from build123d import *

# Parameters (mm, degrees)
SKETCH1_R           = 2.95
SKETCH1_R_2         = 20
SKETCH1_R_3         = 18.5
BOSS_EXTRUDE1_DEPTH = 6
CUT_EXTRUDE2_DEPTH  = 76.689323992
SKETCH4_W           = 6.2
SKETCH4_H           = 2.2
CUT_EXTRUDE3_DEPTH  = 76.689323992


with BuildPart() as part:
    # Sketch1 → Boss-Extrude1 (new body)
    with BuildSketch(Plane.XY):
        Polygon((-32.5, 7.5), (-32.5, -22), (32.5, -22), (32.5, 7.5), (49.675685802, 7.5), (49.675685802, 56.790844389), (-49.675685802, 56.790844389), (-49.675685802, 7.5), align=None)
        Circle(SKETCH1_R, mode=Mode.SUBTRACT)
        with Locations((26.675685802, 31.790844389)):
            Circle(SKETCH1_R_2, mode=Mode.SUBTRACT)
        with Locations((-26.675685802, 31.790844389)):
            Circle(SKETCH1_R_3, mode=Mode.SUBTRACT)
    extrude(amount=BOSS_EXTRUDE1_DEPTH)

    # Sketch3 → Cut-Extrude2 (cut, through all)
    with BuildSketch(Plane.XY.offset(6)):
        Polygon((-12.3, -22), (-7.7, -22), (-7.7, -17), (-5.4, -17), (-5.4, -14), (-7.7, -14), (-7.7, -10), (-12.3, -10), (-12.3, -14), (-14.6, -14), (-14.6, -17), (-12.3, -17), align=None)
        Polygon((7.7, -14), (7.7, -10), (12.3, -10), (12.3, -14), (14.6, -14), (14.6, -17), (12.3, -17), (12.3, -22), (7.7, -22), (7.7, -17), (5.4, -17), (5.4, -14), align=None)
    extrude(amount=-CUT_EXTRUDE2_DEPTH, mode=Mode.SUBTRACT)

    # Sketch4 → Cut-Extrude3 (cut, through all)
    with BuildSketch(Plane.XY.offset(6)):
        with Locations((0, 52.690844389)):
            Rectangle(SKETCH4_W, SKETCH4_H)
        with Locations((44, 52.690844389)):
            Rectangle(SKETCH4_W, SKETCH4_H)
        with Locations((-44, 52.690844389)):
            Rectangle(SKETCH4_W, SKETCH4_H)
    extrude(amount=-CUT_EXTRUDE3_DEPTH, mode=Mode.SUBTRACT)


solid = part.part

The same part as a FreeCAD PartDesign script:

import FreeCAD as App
import Part
import Sketcher

V = App.Vector

doc = App.newDocument("Part")
params = doc.addObject("Spreadsheet::Sheet", "Params")
for row, (alias, value) in enumerate([
    ("sketch1_diameter", "37 mm"),
    ("sketch1_diameter2", "40 mm"),
    ("sketch1_diameter3", "5.9 mm"),
    ("sketch1_width", "65 mm"),
    ("sketch1_height", "29.5 mm"),
    ("pad1_length", "6 mm"),
    ("sketch2_height", "5 mm"),
    ("sketch2_height2", "3 mm"),
    ("sketch2_height3", "4 mm"),
    ("sketch2_width", "4.6 mm"),
    ("sketch2_width2", "2.3 mm"),
    ("sketch3_width", "6.2 mm"),
    ("sketch3_height", "2.2 mm"),
], start=1):
    params.set(f"A{row}", alias)
    params.set(f"B{row}", "=" + value)
    params.setAlias(f"B{row}", alias)

body = doc.addObject("PartDesign::Body", "Body")

sketch1 = body.newObject("Sketcher::SketchObject", "Sketch")
sketch1.AttachmentSupport = (doc.getObject("XY_Plane"), [""])
sketch1.MapMode = "FlatFace"
sketch1.addGeometry(Part.LineSegment(V(-32.5, 7.5, 0), V(-32.5, -22, 0)), False)
sketch1.addGeometry(Part.LineSegment(V(-32.5, -22, 0), V(32.5, -22, 0)), False)
sketch1.addGeometry(Part.LineSegment(V(32.5, -22, 0), V(32.5, 7.5, 0)), False)
sketch1.addGeometry(Part.LineSegment(V(32.5, 7.5, 0), V(49.675686, 7.5, 0)), False)
sketch1.addGeometry(Part.LineSegment(V(49.675686, 7.5, 0), V(49.675686, 56.790844, 0)), False)
sketch1.addGeometry(Part.LineSegment(V(49.675686, 56.790844, 0), V(-49.675686, 56.790844, 0)), False)
sketch1.addGeometry(Part.LineSegment(V(-49.675686, 56.790844, 0), V(-49.675686, 7.5, 0)), False)
sketch1.addGeometry(Part.LineSegment(V(-49.675686, 7.5, 0), V(-32.5, 7.5, 0)), False)
sketch1.addGeometry(Part.Circle(V(0, 0, 0), V(0, 0, 1), 2.95), False)
sketch1.addGeometry(Part.Circle(V(-26.675686, 31.790844, 0), V(0, 0, 1), 18.5), False)
sketch1.addGeometry(Part.Circle(V(26.675686, 31.790844, 0), V(0, 0, 1), 20), False)
sketch1.addConstraint(Sketcher.Constraint("Coincident", 0, 2, 1, 1))
sketch1.addConstraint(Sketcher.Constraint("Coincident", 1, 2, 2, 1))
sketch1.addConstraint(Sketcher.Constraint("Coincident", 2, 2, 3, 1))
sketch1.addConstraint(Sketcher.Constraint("Coincident", 3, 2, 4, 1))
sketch1.addConstraint(Sketcher.Constraint("Coincident", 4, 2, 5, 1))
sketch1.addConstraint(Sketcher.Constraint("Coincident", 5, 2, 6, 1))
sketch1.addConstraint(Sketcher.Constraint("Coincident", 6, 2, 7, 1))
sketch1.addConstraint(Sketcher.Constraint("Coincident", 7, 2, 0, 1))
sketch1.addConstraint(Sketcher.Constraint("Vertical", 0))
sketch1.addConstraint(Sketcher.Constraint("Horizontal", 1))
sketch1.addConstraint(Sketcher.Constraint("Vertical", 2))
sketch1.addConstraint(Sketcher.Constraint("Horizontal", 3))
sketch1.addConstraint(Sketcher.Constraint("Vertical", 4))
sketch1.addConstraint(Sketcher.Constraint("Horizontal", 5))
sketch1.addConstraint(Sketcher.Constraint("Vertical", 6))
sketch1.addConstraint(Sketcher.Constraint("Horizontal", 7))
sketch1.addConstraint(Sketcher.Constraint("Coincident", 8, 3, -1, 1))
sketch1.addConstraint(Sketcher.Constraint("Symmetric", 9, 3, 10, 3, -2))
sketch1.addConstraint(Sketcher.Constraint("Symmetric", 3, 2, 6, 2, -2))
sketch1.addConstraint(Sketcher.Constraint("Equal", 3, 7))
sketch1.addConstraint(Sketcher.Constraint("Diameter", 9, 37.0))
sketch1.addConstraint(Sketcher.Constraint("Diameter", 10, 40.0))
sketch1.addConstraint(Sketcher.Constraint("Diameter", 8, 5.9))
sketch1.addConstraint(Sketcher.Constraint("DistanceX", 1, 1, 1, 2, 65.0))
sketch1.addConstraint(Sketcher.Constraint("DistanceY", 0, 2, 0, 1, 29.5))
sketch1.addConstraint(Sketcher.Constraint("DistanceY", 0, 2, -1, 1, 22.0))
sketch1.addConstraint(Sketcher.Constraint("DistanceX", 10, 3, 3, 2, 23.0))
sketch1.addConstraint(Sketcher.Constraint("DistanceY", 10, 3, 4, 2, 25.0))
sketch1.addConstraint(Sketcher.Constraint("DistanceX", 5, 2, 5, 1, 99.351372))
sketch1.addConstraint(Sketcher.Constraint("DistanceY", 4, 1, 4, 2, 49.290844))
sketch1.setExpression("Constraints[20]", "Params.sketch1_diameter")
sketch1.setExpression("Constraints[21]", "Params.sketch1_diameter2")
sketch1.setExpression("Constraints[22]", "Params.sketch1_diameter3")
sketch1.setExpression("Constraints[23]", "Params.sketch1_width")
sketch1.setExpression("Constraints[24]", "Params.sketch1_height")
pad1 = body.newObject("PartDesign::Pad", "Pad")
pad1.Profile = sketch1
pad1.setExpression("Length", "Params.pad1_length")

sketch2 = body.newObject("Sketcher::SketchObject", "Sketch001")
sketch2.AttachmentSupport = (doc.getObject("XY_Plane"), [""])
sketch2.MapMode = "FlatFace"
sketch2.AttachmentOffset = App.Placement(V(0, 0, 6), App.Rotation())
sketch2.addGeometry(Part.LineSegment(V(-12.3, -22, 0), V(-7.7, -22, 0)), False)
sketch2.addGeometry(Part.LineSegment(V(-7.7, -22, 0), V(-7.7, -17, 0)), False)
sketch2.addGeometry(Part.LineSegment(V(-7.7, -17, 0), V(-5.4, -17, 0)), False)
sketch2.addGeometry(Part.LineSegment(V(-5.4, -17, 0), V(-5.4, -14, 0)), False)
sketch2.addGeometry(Part.LineSegment(V(-5.4, -14, 0), V(-7.7, -14, 0)), False)
sketch2.addGeometry(Part.LineSegment(V(-7.7, -14, 0), V(-7.7, -10, 0)), False)
sketch2.addGeometry(Part.LineSegment(V(-7.7, -10, 0), V(-12.3, -10, 0)), False)
sketch2.addGeometry(Part.LineSegment(V(-12.3, -10, 0), V(-12.3, -14, 0)), False)
sketch2.addGeometry(Part.LineSegment(V(-12.3, -14, 0), V(-14.6, -14, 0)), False)
sketch2.addGeometry(Part.LineSegment(V(-14.6, -14, 0), V(-14.6, -17, 0)), False)
sketch2.addGeometry(Part.LineSegment(V(-14.6, -17, 0), V(-12.3, -17, 0)), False)
sketch2.addGeometry(Part.LineSegment(V(-12.3, -17, 0), V(-12.3, -22, 0)), False)
sketch2.addGeometry(Part.LineSegment(V(7.7, -10, 0), V(7.7, -14, 0)), False)
sketch2.addGeometry(Part.LineSegment(V(7.7, -14, 0), V(5.4, -14, 0)), False)
sketch2.addGeometry(Part.LineSegment(V(5.4, -14, 0), V(5.4, -17, 0)), False)
sketch2.addGeometry(Part.LineSegment(V(5.4, -17, 0), V(7.7, -17, 0)), False)
sketch2.addGeometry(Part.LineSegment(V(7.7, -17, 0), V(7.7, -22, 0)), False)
sketch2.addGeometry(Part.LineSegment(V(7.7, -22, 0), V(12.3, -22, 0)), False)
sketch2.addGeometry(Part.LineSegment(V(12.3, -22, 0), V(12.3, -17, 0)), False)
sketch2.addGeometry(Part.LineSegment(V(12.3, -17, 0), V(14.6, -17, 0)), False)
sketch2.addGeometry(Part.LineSegment(V(14.6, -17, 0), V(14.6, -14, 0)), False)
sketch2.addGeometry(Part.LineSegment(V(14.6, -14, 0), V(12.3, -14, 0)), False)
sketch2.addGeometry(Part.LineSegment(V(12.3, -14, 0), V(12.3, -10, 0)), False)
sketch2.addGeometry(Part.LineSegment(V(12.3, -10, 0), V(7.7, -10, 0)), False)
sketch2.addConstraint(Sketcher.Constraint("Coincident", 0, 2, 1, 1))
sketch2.addConstraint(Sketcher.Constraint("Coincident", 1, 2, 2, 1))
sketch2.addConstraint(Sketcher.Constraint("Coincident", 2, 2, 3, 1))
sketch2.addConstraint(Sketcher.Constraint("Coincident", 3, 2, 4, 1))
sketch2.addConstraint(Sketcher.Constraint("Coincident", 4, 2, 5, 1))
sketch2.addConstraint(Sketcher.Constraint("Coincident", 5, 2, 6, 1))
sketch2.addConstraint(Sketcher.Constraint("Coincident", 6, 2, 7, 1))
sketch2.addConstraint(Sketcher.Constraint("Coincident", 7, 2, 8, 1))
sketch2.addConstraint(Sketcher.Constraint("Coincident", 8, 2, 9, 1))
sketch2.addConstraint(Sketcher.Constraint("Coincident", 9, 2, 10, 1))
sketch2.addConstraint(Sketcher.Constraint("Coincident", 10, 2, 11, 1))
sketch2.addConstraint(Sketcher.Constraint("Coincident", 11, 2, 0, 1))
sketch2.addConstraint(Sketcher.Constraint("Coincident", 12, 2, 13, 1))
sketch2.addConstraint(Sketcher.Constraint("Coincident", 13, 2, 14, 1))
sketch2.addConstraint(Sketcher.Constraint("Coincident", 14, 2, 15, 1))
sketch2.addConstraint(Sketcher.Constraint("Coincident", 15, 2, 16, 1))
sketch2.addConstraint(Sketcher.Constraint("Coincident", 16, 2, 17, 1))
sketch2.addConstraint(Sketcher.Constraint("Coincident", 17, 2, 18, 1))
sketch2.addConstraint(Sketcher.Constraint("Coincident", 18, 2, 19, 1))
sketch2.addConstraint(Sketcher.Constraint("Coincident", 19, 2, 20, 1))
sketch2.addConstraint(Sketcher.Constraint("Coincident", 20, 2, 21, 1))
sketch2.addConstraint(Sketcher.Constraint("Coincident", 21, 2, 22, 1))
sketch2.addConstraint(Sketcher.Constraint("Coincident", 22, 2, 23, 1))
sketch2.addConstraint(Sketcher.Constraint("Coincident", 23, 2, 12, 1))
sketch2.addConstraint(Sketcher.Constraint("Horizontal", 0))
sketch2.addConstraint(Sketcher.Constraint("Vertical", 1))
sketch2.addConstraint(Sketcher.Constraint("Horizontal", 2))
sketch2.addConstraint(Sketcher.Constraint("Vertical", 3))
sketch2.addConstraint(Sketcher.Constraint("Horizontal", 4))
sketch2.addConstraint(Sketcher.Constraint("Vertical", 5))
sketch2.addConstraint(Sketcher.Constraint("Horizontal", 6))
sketch2.addConstraint(Sketcher.Constraint("Vertical", 7))
sketch2.addConstraint(Sketcher.Constraint("Horizontal", 8))
sketch2.addConstraint(Sketcher.Constraint("Vertical", 9))
sketch2.addConstraint(Sketcher.Constraint("Horizontal", 10))
sketch2.addConstraint(Sketcher.Constraint("Vertical", 11))
sketch2.addConstraint(Sketcher.Constraint("Vertical", 12))
sketch2.addConstraint(Sketcher.Constraint("Horizontal", 13))
sketch2.addConstraint(Sketcher.Constraint("Vertical", 14))
sketch2.addConstraint(Sketcher.Constraint("Horizontal", 15))
sketch2.addConstraint(Sketcher.Constraint("Vertical", 16))
sketch2.addConstraint(Sketcher.Constraint("Horizontal", 17))
sketch2.addConstraint(Sketcher.Constraint("Vertical", 18))
sketch2.addConstraint(Sketcher.Constraint("Horizontal", 19))
sketch2.addConstraint(Sketcher.Constraint("Vertical", 20))
sketch2.addConstraint(Sketcher.Constraint("Horizontal", 21))
sketch2.addConstraint(Sketcher.Constraint("Vertical", 22))
sketch2.addConstraint(Sketcher.Constraint("Horizontal", 23))
sketch2.addConstraint(Sketcher.Constraint("Symmetric", 4, 2, 12, 2, -2))
sketch2.addConstraint(Sketcher.Constraint("Symmetric", 2, 2, 14, 2, -2))
sketch2.addConstraint(Sketcher.Constraint("Symmetric", 0, 2, 16, 2, -2))
sketch2.addConstraint(Sketcher.Constraint("Symmetric", 10, 2, 18, 2, -2))
sketch2.addConstraint(Sketcher.Constraint("Symmetric", 8, 2, 20, 2, -2))
sketch2.addConstraint(Sketcher.Constraint("Symmetric", 6, 2, 22, 2, -2))
sketch2.addConstraint(Sketcher.Constraint("Horizontal", 4, 2, 7, 2))
sketch2.addConstraint(Sketcher.Constraint("Horizontal", 2, 2, 9, 2))
sketch2.addConstraint(Sketcher.Constraint("Vertical", 1, 2, 4, 2))
sketch2.addConstraint(Sketcher.Constraint("Vertical", 7, 2, 10, 2))
sketch2.addConstraint(Sketcher.Constraint("Equal", 4, 8))
sketch2.addConstraint(Sketcher.Constraint("DistanceY", 1, 1, 1, 2, 5.0))
sketch2.addConstraint(Sketcher.Constraint("DistanceY", 3, 1, 3, 2, 3.0))
sketch2.addConstraint(Sketcher.Constraint("DistanceY", 5, 1, 5, 2, 4.0))
sketch2.addConstraint(Sketcher.Constraint("DistanceX", 0, 1, 0, 2, 4.6))
sketch2.addConstraint(Sketcher.Constraint("DistanceX", 2, 1, 2, 2, 2.3))
sketch2.addConstraint(Sketcher.Constraint("DistanceY", 0, 2, -1, 1, 22.0))
sketch2.addConstraint(Sketcher.Constraint("DistanceX", 0, 2, -1, 1, 7.7))
sketch2.setExpression("Constraints[59]", "Params.sketch2_height")
sketch2.setExpression("Constraints[60]", "Params.sketch2_height2")
sketch2.setExpression("Constraints[61]", "Params.sketch2_height3")
sketch2.setExpression("Constraints[62]", "Params.sketch2_width")
sketch2.setExpression("Constraints[63]", "Params.sketch2_width2")
pocket1 = body.newObject("PartDesign::Pocket", "Pocket")
pocket1.Profile = sketch2
pocket1.Type = "ThroughAll"

sketch3 = body.newObject("Sketcher::SketchObject", "Sketch002")
sketch3.AttachmentSupport = (doc.getObject("XY_Plane"), [""])
sketch3.MapMode = "FlatFace"
sketch3.AttachmentOffset = App.Placement(V(0, 0, 6), App.Rotation())
sketch3.addGeometry(Part.LineSegment(V(-3.1, 53.790844, 0), V(-3.1, 51.590844, 0)), False)
sketch3.addGeometry(Part.LineSegment(V(-3.1, 51.590844, 0), V(3.1, 51.590844, 0)), False)
sketch3.addGeometry(Part.LineSegment(V(3.1, 51.590844, 0), V(3.1, 53.790844, 0)), False)
sketch3.addGeometry(Part.LineSegment(V(3.1, 53.790844, 0), V(-3.1, 53.790844, 0)), False)
sketch3.addGeometry(Part.LineSegment(V(40.9, 53.790844, 0), V(40.9, 51.590844, 0)), False)
sketch3.addGeometry(Part.LineSegment(V(40.9, 51.590844, 0), V(47.1, 51.590844, 0)), False)
sketch3.addGeometry(Part.LineSegment(V(47.1, 51.590844, 0), V(47.1, 53.790844, 0)), False)
sketch3.addGeometry(Part.LineSegment(V(47.1, 53.790844, 0), V(40.9, 53.790844, 0)), False)
sketch3.addGeometry(Part.LineSegment(V(-47.1, 53.790844, 0), V(-47.1, 51.590844, 0)), False)
sketch3.addGeometry(Part.LineSegment(V(-47.1, 51.590844, 0), V(-40.9, 51.590844, 0)), False)
sketch3.addGeometry(Part.LineSegment(V(-40.9, 51.590844, 0), V(-40.9, 53.790844, 0)), False)
sketch3.addGeometry(Part.LineSegment(V(-40.9, 53.790844, 0), V(-47.1, 53.790844, 0)), False)
sketch3.addConstraint(Sketcher.Constraint("Coincident", 0, 2, 1, 1))
sketch3.addConstraint(Sketcher.Constraint("Coincident", 1, 2, 2, 1))
sketch3.addConstraint(Sketcher.Constraint("Coincident", 2, 2, 3, 1))
sketch3.addConstraint(Sketcher.Constraint("Coincident", 3, 2, 0, 1))
sketch3.addConstraint(Sketcher.Constraint("Coincident", 4, 2, 5, 1))
sketch3.addConstraint(Sketcher.Constraint("Coincident", 5, 2, 6, 1))
sketch3.addConstraint(Sketcher.Constraint("Coincident", 6, 2, 7, 1))
sketch3.addConstraint(Sketcher.Constraint("Coincident", 7, 2, 4, 1))
sketch3.addConstraint(Sketcher.Constraint("Coincident", 8, 2, 9, 1))
sketch3.addConstraint(Sketcher.Constraint("Coincident", 9, 2, 10, 1))
sketch3.addConstraint(Sketcher.Constraint("Coincident", 10, 2, 11, 1))
sketch3.addConstraint(Sketcher.Constraint("Coincident", 11, 2, 8, 1))
sketch3.addConstraint(Sketcher.Constraint("Vertical", 0))
sketch3.addConstraint(Sketcher.Constraint("Horizontal", 1))
sketch3.addConstraint(Sketcher.Constraint("Vertical", 2))
sketch3.addConstraint(Sketcher.Constraint("Horizontal", 3))
sketch3.addConstraint(Sketcher.Constraint("Vertical", 4))
sketch3.addConstraint(Sketcher.Constraint("Horizontal", 5))
sketch3.addConstraint(Sketcher.Constraint("Vertical", 6))
sketch3.addConstraint(Sketcher.Constraint("Horizontal", 7))
sketch3.addConstraint(Sketcher.Constraint("Vertical", 8))
sketch3.addConstraint(Sketcher.Constraint("Horizontal", 9))
sketch3.addConstraint(Sketcher.Constraint("Vertical", 10))
sketch3.addConstraint(Sketcher.Constraint("Horizontal", 11))
sketch3.addConstraint(Sketcher.Constraint("Symmetric", 5, 2, 8, 2, -2))
sketch3.addConstraint(Sketcher.Constraint("Symmetric", 7, 2, 10, 2, -2))
sketch3.addConstraint(Sketcher.Constraint("Horizontal", 1, 2, 4, 2))
sketch3.addConstraint(Sketcher.Constraint("Horizontal", 3, 2, 6, 2))
sketch3.addConstraint(Sketcher.Constraint("Equal", 3, 5))
sketch3.addConstraint(Sketcher.Constraint("DistanceX", 1, 1, 1, 2, 6.2))
sketch3.addConstraint(Sketcher.Constraint("DistanceY", 0, 2, 0, 1, 2.2))
sketch3.addConstraint(Sketcher.Constraint("DistanceX", 0, 2, 4, 2, 44.0))
sketch3.addConstraint(Sketcher.Constraint("DistanceX", 8, 2, 0, 2, 44.0))
sketch3.addConstraint(Sketcher.Constraint("DistanceY", -1, 1, 0, 2, 51.590844))
sketch3.setExpression("Constraints[29]", "Params.sketch3_width")
sketch3.setExpression("Constraints[30]", "Params.sketch3_height")
pocket2 = body.newObject("PartDesign::Pocket", "Pocket001")
pocket2.Profile = sketch3
pocket2.Type = "ThroughAll"

doc.recompute()
